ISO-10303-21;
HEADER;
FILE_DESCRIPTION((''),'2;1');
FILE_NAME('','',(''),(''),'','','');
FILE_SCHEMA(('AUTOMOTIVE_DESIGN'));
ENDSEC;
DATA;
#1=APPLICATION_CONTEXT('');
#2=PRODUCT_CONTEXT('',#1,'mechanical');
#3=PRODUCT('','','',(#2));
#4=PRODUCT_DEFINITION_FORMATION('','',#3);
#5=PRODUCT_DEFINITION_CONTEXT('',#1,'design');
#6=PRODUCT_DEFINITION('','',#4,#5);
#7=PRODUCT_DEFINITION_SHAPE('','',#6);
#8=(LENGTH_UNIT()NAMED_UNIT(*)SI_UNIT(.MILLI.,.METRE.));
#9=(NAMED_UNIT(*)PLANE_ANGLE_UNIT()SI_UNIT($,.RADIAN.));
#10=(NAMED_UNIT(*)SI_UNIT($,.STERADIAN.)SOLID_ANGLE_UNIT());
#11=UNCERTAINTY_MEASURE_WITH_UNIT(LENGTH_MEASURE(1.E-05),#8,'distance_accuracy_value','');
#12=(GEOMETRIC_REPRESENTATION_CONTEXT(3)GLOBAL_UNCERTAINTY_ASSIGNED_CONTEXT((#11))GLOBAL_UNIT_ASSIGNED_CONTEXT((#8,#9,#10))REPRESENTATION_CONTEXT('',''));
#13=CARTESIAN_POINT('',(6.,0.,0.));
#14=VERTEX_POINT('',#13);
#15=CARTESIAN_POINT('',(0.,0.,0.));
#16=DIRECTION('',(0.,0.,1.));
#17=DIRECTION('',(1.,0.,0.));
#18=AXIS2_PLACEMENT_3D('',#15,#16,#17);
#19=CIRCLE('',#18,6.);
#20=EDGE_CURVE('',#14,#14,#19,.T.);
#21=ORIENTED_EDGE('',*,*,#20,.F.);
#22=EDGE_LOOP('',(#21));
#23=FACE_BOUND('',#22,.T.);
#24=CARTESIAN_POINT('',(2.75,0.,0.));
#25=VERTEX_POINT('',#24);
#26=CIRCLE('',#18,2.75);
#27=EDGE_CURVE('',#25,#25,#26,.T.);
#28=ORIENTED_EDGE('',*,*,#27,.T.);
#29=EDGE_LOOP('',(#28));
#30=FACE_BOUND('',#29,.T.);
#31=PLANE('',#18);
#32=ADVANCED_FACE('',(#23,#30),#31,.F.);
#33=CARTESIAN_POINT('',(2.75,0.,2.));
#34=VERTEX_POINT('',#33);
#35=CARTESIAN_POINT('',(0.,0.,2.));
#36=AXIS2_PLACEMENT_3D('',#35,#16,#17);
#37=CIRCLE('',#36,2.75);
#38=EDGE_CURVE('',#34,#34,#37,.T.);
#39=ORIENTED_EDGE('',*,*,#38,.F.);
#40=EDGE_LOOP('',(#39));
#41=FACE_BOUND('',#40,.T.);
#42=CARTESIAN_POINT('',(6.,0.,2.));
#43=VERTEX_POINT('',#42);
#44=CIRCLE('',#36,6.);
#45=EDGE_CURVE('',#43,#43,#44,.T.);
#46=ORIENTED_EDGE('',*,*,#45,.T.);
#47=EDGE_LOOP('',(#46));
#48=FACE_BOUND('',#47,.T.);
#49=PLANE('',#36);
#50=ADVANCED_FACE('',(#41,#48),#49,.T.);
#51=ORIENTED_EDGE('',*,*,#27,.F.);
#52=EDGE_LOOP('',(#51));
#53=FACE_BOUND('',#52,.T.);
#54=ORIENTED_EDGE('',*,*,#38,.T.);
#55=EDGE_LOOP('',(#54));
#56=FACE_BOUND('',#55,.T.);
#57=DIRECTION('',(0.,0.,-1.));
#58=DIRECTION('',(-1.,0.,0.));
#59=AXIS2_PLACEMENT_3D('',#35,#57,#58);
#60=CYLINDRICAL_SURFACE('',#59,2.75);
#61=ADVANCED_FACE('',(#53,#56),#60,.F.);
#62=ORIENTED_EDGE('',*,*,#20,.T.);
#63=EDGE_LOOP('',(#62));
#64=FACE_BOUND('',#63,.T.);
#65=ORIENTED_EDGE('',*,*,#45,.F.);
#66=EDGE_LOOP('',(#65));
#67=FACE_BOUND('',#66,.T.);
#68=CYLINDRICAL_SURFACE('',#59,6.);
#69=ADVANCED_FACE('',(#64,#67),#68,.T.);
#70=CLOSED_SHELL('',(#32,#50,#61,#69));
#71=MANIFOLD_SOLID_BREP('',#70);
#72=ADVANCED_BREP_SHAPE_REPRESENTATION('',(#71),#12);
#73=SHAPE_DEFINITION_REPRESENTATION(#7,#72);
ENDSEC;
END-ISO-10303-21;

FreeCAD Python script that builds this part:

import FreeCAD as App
import Part
import Sketcher
from FreeCAD import Vector

doc = App.newDocument("Part")
params = doc.addObject("Spreadsheet::Sheet", "Params")
for row, (alias, value) in enumerate([
    ("sketch1_diameter", "12 mm"),
    ("sketch1_diameter2", "5.5 mm"),
    ("pad1_length", "2 mm"),
], start=1):
    params.set(f"A{row}", alias)
    params.set(f"B{row}", "=" + value)
    params.setAlias(f"B{row}", alias)

body = doc.addObject("PartDesign::Body", "Body")

# Sketch on XY plane
sketch1 = doc.addObject("Sketcher::SketchObject", "Sketch")
body.addObject(sketch1)
sketch1.AttachmentSupport = (doc.XY_Plane, [""])
sketch1.MapMode = "FlatFace"
sketch1.addGeometry([
    Part.Circle(Vector(0, 0, 0), Vector(0, 0, 1), 6),
    Part.Circle(Vector(0, 0, 0), Vector(0, 0, 1), 2.8),
], False)
sketch1.addConstraint([
    Sketcher.Constraint("Coincident", 0, 3, -1, 1),
    Sketcher.Constraint("Coincident", 1, 3, -1, 1),
    Sketcher.Constraint("Diameter", 0, 12.0),
    Sketcher.Constraint("Diameter", 1, 5.5),
])
sketch1.setExpression("Constraints[2]", "Params.sketch1_diameter")
sketch1.setExpression("Constraints[3]", "Params.sketch1_diameter2")
pad1 = doc.addObject("PartDesign::Pad", "Pad")
body.addObject(pad1)
pad1.Profile = sketch1
pad1.setExpression("Length", "Params.pad1_length")

doc.recompute()
